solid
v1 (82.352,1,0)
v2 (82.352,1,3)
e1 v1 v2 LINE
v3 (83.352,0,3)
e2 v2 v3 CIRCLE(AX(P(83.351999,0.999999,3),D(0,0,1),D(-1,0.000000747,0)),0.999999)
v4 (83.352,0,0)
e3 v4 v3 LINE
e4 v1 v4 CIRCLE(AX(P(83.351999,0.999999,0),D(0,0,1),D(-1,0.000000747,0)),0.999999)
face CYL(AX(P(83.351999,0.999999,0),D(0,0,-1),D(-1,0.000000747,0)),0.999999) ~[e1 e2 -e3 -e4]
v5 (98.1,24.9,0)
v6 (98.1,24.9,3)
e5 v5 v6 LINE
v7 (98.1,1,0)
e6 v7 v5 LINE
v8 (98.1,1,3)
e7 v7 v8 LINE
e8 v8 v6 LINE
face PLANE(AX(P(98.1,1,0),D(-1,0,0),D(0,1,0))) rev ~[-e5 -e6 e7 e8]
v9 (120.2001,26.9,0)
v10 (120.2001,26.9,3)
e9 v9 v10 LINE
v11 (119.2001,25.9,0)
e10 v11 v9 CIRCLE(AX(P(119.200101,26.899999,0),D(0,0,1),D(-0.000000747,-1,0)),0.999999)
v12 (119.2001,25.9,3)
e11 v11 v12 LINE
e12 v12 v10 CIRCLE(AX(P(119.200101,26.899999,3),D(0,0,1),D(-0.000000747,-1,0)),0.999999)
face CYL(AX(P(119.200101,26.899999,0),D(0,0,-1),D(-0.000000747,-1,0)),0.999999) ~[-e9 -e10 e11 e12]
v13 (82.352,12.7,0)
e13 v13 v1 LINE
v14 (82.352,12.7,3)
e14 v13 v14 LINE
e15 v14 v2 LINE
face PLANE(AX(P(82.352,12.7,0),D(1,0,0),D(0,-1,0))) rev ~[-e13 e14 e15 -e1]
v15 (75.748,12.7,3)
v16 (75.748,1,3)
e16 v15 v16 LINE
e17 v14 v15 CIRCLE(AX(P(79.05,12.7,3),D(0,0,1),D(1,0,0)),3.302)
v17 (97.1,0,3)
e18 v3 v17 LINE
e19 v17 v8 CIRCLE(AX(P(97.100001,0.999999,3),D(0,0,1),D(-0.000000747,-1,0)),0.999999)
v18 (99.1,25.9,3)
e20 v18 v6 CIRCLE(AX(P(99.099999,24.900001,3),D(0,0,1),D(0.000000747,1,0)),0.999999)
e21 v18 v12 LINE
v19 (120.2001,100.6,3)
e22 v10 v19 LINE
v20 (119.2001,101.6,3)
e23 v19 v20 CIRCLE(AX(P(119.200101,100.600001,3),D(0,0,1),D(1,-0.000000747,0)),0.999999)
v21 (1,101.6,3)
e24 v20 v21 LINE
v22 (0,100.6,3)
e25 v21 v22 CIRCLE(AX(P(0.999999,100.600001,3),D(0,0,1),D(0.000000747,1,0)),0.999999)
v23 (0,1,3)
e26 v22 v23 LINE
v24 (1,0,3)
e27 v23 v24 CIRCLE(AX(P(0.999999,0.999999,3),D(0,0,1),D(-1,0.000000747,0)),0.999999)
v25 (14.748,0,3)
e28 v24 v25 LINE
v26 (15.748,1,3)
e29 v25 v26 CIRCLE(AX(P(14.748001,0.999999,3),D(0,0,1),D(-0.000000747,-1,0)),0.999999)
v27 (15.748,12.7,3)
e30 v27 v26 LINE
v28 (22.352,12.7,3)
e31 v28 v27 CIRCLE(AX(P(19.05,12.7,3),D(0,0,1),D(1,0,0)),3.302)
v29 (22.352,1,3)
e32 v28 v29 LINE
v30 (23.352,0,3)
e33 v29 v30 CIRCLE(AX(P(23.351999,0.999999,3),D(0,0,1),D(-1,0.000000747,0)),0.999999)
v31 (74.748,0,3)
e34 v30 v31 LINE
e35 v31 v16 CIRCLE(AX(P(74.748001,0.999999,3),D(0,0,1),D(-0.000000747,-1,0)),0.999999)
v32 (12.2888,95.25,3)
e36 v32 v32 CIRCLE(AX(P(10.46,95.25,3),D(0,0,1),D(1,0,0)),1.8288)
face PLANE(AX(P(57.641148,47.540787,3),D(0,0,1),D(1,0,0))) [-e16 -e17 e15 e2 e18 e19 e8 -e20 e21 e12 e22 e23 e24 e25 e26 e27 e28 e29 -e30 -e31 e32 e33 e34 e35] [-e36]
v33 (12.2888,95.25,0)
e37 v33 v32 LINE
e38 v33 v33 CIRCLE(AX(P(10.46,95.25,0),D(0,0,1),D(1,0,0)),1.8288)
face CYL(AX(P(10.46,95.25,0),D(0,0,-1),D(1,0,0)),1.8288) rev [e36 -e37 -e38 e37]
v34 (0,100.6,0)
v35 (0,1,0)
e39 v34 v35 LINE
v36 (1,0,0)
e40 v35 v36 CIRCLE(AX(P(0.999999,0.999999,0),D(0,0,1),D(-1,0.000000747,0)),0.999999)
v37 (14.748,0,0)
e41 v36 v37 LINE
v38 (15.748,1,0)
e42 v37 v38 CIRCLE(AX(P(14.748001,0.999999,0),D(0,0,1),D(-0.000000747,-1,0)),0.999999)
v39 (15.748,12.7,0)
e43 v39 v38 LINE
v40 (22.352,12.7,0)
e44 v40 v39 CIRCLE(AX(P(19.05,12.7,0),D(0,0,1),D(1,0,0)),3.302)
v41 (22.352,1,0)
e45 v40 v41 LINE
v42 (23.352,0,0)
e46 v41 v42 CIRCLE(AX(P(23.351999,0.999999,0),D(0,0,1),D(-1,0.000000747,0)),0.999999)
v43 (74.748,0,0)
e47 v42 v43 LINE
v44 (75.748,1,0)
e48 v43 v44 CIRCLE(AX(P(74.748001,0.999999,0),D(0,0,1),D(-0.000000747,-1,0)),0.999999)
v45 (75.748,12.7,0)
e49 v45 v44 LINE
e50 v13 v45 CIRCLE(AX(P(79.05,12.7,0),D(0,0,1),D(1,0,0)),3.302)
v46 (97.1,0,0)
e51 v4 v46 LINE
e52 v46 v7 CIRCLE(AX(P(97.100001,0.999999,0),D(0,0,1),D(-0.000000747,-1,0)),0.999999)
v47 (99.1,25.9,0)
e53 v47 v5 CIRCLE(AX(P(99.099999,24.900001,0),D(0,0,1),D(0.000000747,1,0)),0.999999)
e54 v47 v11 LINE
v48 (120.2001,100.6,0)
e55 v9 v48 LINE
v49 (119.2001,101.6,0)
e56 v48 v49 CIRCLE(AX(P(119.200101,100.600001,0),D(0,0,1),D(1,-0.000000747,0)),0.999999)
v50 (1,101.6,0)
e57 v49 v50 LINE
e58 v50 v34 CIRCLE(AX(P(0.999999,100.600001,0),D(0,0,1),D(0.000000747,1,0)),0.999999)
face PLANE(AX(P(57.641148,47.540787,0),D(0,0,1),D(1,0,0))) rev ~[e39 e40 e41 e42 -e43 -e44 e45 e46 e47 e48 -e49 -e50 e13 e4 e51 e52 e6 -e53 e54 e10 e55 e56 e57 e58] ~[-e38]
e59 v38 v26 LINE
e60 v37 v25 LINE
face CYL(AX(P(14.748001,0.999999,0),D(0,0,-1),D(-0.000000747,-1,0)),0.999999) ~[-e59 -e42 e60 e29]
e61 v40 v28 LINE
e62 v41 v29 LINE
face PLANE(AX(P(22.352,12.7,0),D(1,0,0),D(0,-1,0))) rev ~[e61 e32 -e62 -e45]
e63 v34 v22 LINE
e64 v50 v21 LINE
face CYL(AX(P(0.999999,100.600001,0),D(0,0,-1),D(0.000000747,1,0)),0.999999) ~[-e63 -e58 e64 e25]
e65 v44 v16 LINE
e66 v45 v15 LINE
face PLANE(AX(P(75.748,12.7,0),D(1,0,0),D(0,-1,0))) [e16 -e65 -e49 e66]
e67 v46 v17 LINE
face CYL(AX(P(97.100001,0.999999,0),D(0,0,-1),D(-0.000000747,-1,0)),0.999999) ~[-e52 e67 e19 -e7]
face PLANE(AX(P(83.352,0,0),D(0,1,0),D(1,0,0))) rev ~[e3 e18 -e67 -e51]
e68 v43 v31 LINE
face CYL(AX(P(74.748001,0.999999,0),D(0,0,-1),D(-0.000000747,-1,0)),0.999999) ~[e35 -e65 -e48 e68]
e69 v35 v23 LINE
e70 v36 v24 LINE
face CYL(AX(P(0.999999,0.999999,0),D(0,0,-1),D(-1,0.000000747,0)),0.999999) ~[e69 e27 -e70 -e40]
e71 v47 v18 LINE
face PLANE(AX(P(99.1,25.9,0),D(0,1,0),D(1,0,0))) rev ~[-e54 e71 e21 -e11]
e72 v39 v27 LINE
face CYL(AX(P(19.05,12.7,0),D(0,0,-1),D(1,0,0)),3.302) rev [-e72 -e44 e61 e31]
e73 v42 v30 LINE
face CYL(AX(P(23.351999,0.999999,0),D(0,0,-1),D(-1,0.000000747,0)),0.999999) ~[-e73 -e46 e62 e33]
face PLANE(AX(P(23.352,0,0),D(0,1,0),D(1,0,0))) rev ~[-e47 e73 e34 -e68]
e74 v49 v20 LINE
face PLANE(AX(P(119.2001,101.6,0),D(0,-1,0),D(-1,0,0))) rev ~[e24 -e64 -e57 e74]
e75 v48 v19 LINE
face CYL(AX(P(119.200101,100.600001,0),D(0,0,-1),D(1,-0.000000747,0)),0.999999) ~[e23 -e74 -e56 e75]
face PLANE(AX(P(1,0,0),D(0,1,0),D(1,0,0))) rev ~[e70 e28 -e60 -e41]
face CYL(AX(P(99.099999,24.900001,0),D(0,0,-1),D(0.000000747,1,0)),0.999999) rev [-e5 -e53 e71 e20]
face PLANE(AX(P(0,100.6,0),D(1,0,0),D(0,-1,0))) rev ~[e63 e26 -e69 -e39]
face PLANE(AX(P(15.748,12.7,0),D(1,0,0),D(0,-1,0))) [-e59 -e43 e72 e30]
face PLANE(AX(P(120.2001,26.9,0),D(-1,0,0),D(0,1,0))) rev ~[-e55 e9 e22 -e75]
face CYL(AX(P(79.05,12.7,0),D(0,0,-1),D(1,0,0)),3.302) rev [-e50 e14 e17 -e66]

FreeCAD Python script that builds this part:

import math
import FreeCAD as App
import Part
import Sketcher
from FreeCAD import Vector

doc = App.newDocument("Part")
body = doc.addObject("PartDesign::Body", "Body")

# Sketch on XY plane
sketch1 = body.newObject("Sketcher::SketchObject", "Sketch")
sketch1.AttachmentSupport = (doc.getObject("XY_Plane"), [""])
sketch1.MapMode = "FlatFace"
sketch1.addGeometry(Part.LineSegment(Vector(0, 100.6, 0), Vector(0, 1, 0)), False)
sketch1.addGeometry(Part.ArcOfCircle(Part.Circle(Vector(1, 1, 0), Vector(0, 0, 1), 1), math.radians(180), math.radians(270)), False)
sketch1.addGeometry(Part.LineSegment(Vector(1, 0, 0), Vector(14.7, 0, 0)), False)
sketch1.addGeometry(Part.ArcOfCircle(Part.Circle(Vector(14.7, 1, 0), Vector(0, 0, 1), 1), math.radians(-90), math.radians(0)), False)
sketch1.addGeometry(Part.LineSegment(Vector(15.7, 1, 0), Vector(15.7, 12.7, 0)), False)
sketch1.addGeometry(Part.ArcOfCircle(Part.Circle(Vector(19.1, 12.7, 0), Vector(0, 0, 1), 3.3), math.radians(0), math.radians(180)), False)
sketch1.addGeometry(Part.LineSegment(Vector(22.4, 12.7, 0), Vector(22.4, 1, 0)), False)
sketch1.addGeometry(Part.ArcOfCircle(Part.Circle(Vector(23.4, 1, 0), Vector(0, 0, 1), 1), math.radians(180), math.radians(270)), False)
sketch1.addGeometry(Part.LineSegment(Vector(23.4, 0, 0), Vector(74.7, 0, 0)), False)
sketch1.addGeometry(Part.ArcOfCircle(Part.Circle(Vector(74.7, 1, 0), Vector(0, 0, 1), 1), math.radians(-90), math.radians(0)), False)
sketch1.addGeometry(Part.LineSegment(Vector(75.7, 1, 0), Vector(75.7, 12.7, 0)), False)
sketch1.addGeometry(Part.ArcOfCircle(Part.Circle(Vector(79, 12.7, 0), Vector(0, 0, 1), 3.3), math.radians(0), math.radians(180)), False)
sketch1.addGeometry(Part.LineSegment(Vector(82.4, 12.7, 0), Vector(82.4, 1, 0)), False)
sketch1.addGeometry(Part.ArcOfCircle(Part.Circle(Vector(83.4, 1, 0), Vector(0, 0, 1), 1), math.radians(180), math.radians(270)), False)
sketch1.addGeometry(Part.LineSegment(Vector(83.4, 0, 0), Vector(97.1, 0, 0)), False)
sketch1.addGeometry(Part.ArcOfCircle(Part.Circle(Vector(97.1, 1, 0), Vector(0, 0, 1), 1), math.radians(-90), math.radians(0)), False)
sketch1.addGeometry(Part.LineSegment(Vector(98.1, 1, 0), Vector(98.1, 24.9, 0)), False)
sketch1.addGeometry(Part.ArcOfCircle(Part.Circle(Vector(99.1, 24.9, 0), Vector(0, 0, 1), 1), math.radians(90), math.radians(180)), False)
sketch1.addGeometry(Part.LineSegment(Vector(99.1, 25.9, 0), Vector(119.2, 25.9, 0)), False)
sketch1.addGeometry(Part.ArcOfCircle(Part.Circle(Vector(119.2, 26.9, 0), Vector(0, 0, 1), 1), math.radians(-90), math.radians(0)), False)
sketch1.addGeometry(Part.LineSegment(Vector(120.2, 26.9, 0), Vector(120.2, 100.6, 0)), False)
sketch1.addGeometry(Part.ArcOfCircle(Part.Circle(Vector(119.2, 100.6, 0), Vector(0, 0, 1), 1), math.radians(0), math.radians(90)), False)
sketch1.addGeometry(Part.LineSegment(Vector(119.2, 101.6, 0), Vector(1, 101.6, 0)), False)
sketch1.addGeometry(Part.ArcOfCircle(Part.Circle(Vector(1, 100.6, 0), Vector(0, 0, 1), 1), math.radians(90), math.radians(180)), False)
sketch1.addGeometry(Part.Circle(Vector(10.5, 95.2, 0), Vector(0, 0, 1), 1.8), False)
sketch1.addConstraint(Sketcher.Constraint("Tangent", 0, 2, 1, 1))
sketch1.addConstraint(Sketcher.Constraint("Tangent", 1, 2, 2, 1))
sketch1.addConstraint(Sketcher.Constraint("Tangent", 2, 2, 3, 1))
sketch1.addConstraint(Sketcher.Constraint("Tangent", 3, 2, 4, 1))
sketch1.addConstraint(Sketcher.Constraint("Tangent", 4, 2, 5, 2))
sketch1.addConstraint(Sketcher.Constraint("Tangent", 5, 1, 6, 1))
sketch1.addConstraint(Sketcher.Constraint("Tangent", 6, 2, 7, 1))
sketch1.addConstraint(Sketcher.Constraint("Tangent", 7, 2, 8, 1))
sketch1.addConstraint(Sketcher.Constraint("Tangent", 8, 2, 9, 1))
sketch1.addConstraint(Sketcher.Constraint("Tangent", 9, 2, 10, 1))
sketch1.addConstraint(Sketcher.Constraint("Tangent", 10, 2, 11, 2))
sketch1.addConstraint(Sketcher.Constraint("Tangent", 11, 1, 12, 1))
sketch1.addConstraint(Sketcher.Constraint("Tangent", 12, 2, 13, 1))
sketch1.addConstraint(Sketcher.Constraint("Tangent", 13, 2, 14, 1))
sketch1.addConstraint(Sketcher.Constraint("Tangent", 14, 2, 15, 1))
sketch1.addConstraint(Sketcher.Constraint("Tangent", 15, 2, 16, 1))
sketch1.addConstraint(Sketcher.Constraint("Tangent", 16, 2, 17, 2))
sketch1.addConstraint(Sketcher.Constraint("Tangent", 17, 1, 18, 1))
sketch1.addConstraint(Sketcher.Constraint("Tangent", 18, 2, 19, 1))
sketch1.addConstraint(Sketcher.Constraint("Tangent", 19, 2, 20, 1))
sketch1.addConstraint(Sketcher.Constraint("Tangent", 20, 2, 21, 1))
sketch1.addConstraint(Sketcher.Constraint("Tangent", 21, 2, 22, 1))
sketch1.addConstraint(Sketcher.Constraint("Tangent", 22, 2, 23, 1))
sketch1.addConstraint(Sketcher.Constraint("Tangent", 23, 2, 0, 1))
sketch1.addConstraint(Sketcher.Constraint("Vertical", 0))
sketch1.addConstraint(Sketcher.Constraint("Horizontal", 2))
sketch1.addConstraint(Sketcher.Constraint("Vertical", 4))
sketch1.addConstraint(Sketcher.Constraint("Vertical", 6))
sketch1.addConstraint(Sketcher.Constraint("Horizontal", 8))
sketch1.addConstraint(Sketcher.Constraint("Vertical", 10))
sketch1.addConstraint(Sketcher.Constraint("Vertical", 12))
sketch1.addConstraint(Sketcher.Constraint("Horizontal", 14))
sketch1.addConstraint(Sketcher.Constraint("Vertical", 16))
sketch1.addConstraint(Sketcher.Constraint("Horizontal", 18))
sketch1.addConstraint(Sketcher.Constraint("Vertical", 20))
sketch1.addConstraint(Sketcher.Constraint("Horizontal", 22))
sketch1.addConstraint(Sketcher.Constraint("Equal", 1, 3))
sketch1.addConstraint(Sketcher.Constraint("Equal", 3, 7))
sketch1.addConstraint(Sketcher.Constraint("Equal", 7, 9))
sketch1.addConstraint(Sketcher.Constraint("Equal", 5, 11))
sketch1.addConstraint(Sketcher.Constraint("Equal", 9, 13))
sketch1.addConstraint(Sketcher.Constraint("Equal", 13, 15))
sketch1.addConstraint(Sketcher.Constraint("Equal", 15, 17))
sketch1.addConstraint(Sketcher.Constraint("Equal", 17, 19))
sketch1.addConstraint(Sketcher.Constraint("Equal", 19, 21))
sketch1.addConstraint(Sketcher.Constraint("Equal", 21, 23))
sketch1.addConstraint(Sketcher.Constraint("PointOnObject", 0, 2, -2))
sketch1.addConstraint(Sketcher.Constraint("PointOnObject", 1, 2, -1))
sketch1.addConstraint(Sketcher.Constraint("PointOnObject", 7, 2, -1))
sketch1.addConstraint(Sketcher.Constraint("PointOnObject", 13, 2, -1))
sketch1.addConstraint(Sketcher.Constraint("Horizontal", 5, 3, 11, 3))
sketch1.addConstraint(Sketcher.Constraint("Equal", 2, 14))
sketch1.addConstraint(Sketcher.Constraint("Radius", 1, 0.999999))
sketch1.addConstraint(Sketcher.Constraint("DistanceY", 0, 2, 0, 1, 99.6))
sketch1.addConstraint(Sketcher.Constraint("DistanceY", 4, 1, 4, 2, 11.7))
sketch1.addConstraint(Sketcher.Constraint("DistanceY", 16, 1, 16, 2, 23.9))
sketch1.addConstraint(Sketcher.Constraint("Radius", 5, 3.302))
sketch1.addConstraint(Sketcher.Constraint("DistanceX", 3, 3, 9, 3, 60.0))
sketch1.addConstraint(Sketcher.Constraint("Diameter", 24, 3.6576))
sketch1.addConstraint(Sketcher.Constraint("DistanceX", -1, 1, 15, 3, 97.100001))
sketch1.addConstraint(Sketcher.Constraint("DistanceX", -1, 1, 24, 3, 10.46))
sketch1.addConstraint(Sketcher.Constraint("DistanceY", -1, 1, 24, 3, 95.25))
sketch1.addConstraint(Sketcher.Constraint("DistanceX", 18, 1, 18, 2, 20.1001))
pad1 = body.newObject("PartDesign::Pad", "Pad")
pad1.Profile = sketch1
pad1.Length = 3

doc.recompute()
